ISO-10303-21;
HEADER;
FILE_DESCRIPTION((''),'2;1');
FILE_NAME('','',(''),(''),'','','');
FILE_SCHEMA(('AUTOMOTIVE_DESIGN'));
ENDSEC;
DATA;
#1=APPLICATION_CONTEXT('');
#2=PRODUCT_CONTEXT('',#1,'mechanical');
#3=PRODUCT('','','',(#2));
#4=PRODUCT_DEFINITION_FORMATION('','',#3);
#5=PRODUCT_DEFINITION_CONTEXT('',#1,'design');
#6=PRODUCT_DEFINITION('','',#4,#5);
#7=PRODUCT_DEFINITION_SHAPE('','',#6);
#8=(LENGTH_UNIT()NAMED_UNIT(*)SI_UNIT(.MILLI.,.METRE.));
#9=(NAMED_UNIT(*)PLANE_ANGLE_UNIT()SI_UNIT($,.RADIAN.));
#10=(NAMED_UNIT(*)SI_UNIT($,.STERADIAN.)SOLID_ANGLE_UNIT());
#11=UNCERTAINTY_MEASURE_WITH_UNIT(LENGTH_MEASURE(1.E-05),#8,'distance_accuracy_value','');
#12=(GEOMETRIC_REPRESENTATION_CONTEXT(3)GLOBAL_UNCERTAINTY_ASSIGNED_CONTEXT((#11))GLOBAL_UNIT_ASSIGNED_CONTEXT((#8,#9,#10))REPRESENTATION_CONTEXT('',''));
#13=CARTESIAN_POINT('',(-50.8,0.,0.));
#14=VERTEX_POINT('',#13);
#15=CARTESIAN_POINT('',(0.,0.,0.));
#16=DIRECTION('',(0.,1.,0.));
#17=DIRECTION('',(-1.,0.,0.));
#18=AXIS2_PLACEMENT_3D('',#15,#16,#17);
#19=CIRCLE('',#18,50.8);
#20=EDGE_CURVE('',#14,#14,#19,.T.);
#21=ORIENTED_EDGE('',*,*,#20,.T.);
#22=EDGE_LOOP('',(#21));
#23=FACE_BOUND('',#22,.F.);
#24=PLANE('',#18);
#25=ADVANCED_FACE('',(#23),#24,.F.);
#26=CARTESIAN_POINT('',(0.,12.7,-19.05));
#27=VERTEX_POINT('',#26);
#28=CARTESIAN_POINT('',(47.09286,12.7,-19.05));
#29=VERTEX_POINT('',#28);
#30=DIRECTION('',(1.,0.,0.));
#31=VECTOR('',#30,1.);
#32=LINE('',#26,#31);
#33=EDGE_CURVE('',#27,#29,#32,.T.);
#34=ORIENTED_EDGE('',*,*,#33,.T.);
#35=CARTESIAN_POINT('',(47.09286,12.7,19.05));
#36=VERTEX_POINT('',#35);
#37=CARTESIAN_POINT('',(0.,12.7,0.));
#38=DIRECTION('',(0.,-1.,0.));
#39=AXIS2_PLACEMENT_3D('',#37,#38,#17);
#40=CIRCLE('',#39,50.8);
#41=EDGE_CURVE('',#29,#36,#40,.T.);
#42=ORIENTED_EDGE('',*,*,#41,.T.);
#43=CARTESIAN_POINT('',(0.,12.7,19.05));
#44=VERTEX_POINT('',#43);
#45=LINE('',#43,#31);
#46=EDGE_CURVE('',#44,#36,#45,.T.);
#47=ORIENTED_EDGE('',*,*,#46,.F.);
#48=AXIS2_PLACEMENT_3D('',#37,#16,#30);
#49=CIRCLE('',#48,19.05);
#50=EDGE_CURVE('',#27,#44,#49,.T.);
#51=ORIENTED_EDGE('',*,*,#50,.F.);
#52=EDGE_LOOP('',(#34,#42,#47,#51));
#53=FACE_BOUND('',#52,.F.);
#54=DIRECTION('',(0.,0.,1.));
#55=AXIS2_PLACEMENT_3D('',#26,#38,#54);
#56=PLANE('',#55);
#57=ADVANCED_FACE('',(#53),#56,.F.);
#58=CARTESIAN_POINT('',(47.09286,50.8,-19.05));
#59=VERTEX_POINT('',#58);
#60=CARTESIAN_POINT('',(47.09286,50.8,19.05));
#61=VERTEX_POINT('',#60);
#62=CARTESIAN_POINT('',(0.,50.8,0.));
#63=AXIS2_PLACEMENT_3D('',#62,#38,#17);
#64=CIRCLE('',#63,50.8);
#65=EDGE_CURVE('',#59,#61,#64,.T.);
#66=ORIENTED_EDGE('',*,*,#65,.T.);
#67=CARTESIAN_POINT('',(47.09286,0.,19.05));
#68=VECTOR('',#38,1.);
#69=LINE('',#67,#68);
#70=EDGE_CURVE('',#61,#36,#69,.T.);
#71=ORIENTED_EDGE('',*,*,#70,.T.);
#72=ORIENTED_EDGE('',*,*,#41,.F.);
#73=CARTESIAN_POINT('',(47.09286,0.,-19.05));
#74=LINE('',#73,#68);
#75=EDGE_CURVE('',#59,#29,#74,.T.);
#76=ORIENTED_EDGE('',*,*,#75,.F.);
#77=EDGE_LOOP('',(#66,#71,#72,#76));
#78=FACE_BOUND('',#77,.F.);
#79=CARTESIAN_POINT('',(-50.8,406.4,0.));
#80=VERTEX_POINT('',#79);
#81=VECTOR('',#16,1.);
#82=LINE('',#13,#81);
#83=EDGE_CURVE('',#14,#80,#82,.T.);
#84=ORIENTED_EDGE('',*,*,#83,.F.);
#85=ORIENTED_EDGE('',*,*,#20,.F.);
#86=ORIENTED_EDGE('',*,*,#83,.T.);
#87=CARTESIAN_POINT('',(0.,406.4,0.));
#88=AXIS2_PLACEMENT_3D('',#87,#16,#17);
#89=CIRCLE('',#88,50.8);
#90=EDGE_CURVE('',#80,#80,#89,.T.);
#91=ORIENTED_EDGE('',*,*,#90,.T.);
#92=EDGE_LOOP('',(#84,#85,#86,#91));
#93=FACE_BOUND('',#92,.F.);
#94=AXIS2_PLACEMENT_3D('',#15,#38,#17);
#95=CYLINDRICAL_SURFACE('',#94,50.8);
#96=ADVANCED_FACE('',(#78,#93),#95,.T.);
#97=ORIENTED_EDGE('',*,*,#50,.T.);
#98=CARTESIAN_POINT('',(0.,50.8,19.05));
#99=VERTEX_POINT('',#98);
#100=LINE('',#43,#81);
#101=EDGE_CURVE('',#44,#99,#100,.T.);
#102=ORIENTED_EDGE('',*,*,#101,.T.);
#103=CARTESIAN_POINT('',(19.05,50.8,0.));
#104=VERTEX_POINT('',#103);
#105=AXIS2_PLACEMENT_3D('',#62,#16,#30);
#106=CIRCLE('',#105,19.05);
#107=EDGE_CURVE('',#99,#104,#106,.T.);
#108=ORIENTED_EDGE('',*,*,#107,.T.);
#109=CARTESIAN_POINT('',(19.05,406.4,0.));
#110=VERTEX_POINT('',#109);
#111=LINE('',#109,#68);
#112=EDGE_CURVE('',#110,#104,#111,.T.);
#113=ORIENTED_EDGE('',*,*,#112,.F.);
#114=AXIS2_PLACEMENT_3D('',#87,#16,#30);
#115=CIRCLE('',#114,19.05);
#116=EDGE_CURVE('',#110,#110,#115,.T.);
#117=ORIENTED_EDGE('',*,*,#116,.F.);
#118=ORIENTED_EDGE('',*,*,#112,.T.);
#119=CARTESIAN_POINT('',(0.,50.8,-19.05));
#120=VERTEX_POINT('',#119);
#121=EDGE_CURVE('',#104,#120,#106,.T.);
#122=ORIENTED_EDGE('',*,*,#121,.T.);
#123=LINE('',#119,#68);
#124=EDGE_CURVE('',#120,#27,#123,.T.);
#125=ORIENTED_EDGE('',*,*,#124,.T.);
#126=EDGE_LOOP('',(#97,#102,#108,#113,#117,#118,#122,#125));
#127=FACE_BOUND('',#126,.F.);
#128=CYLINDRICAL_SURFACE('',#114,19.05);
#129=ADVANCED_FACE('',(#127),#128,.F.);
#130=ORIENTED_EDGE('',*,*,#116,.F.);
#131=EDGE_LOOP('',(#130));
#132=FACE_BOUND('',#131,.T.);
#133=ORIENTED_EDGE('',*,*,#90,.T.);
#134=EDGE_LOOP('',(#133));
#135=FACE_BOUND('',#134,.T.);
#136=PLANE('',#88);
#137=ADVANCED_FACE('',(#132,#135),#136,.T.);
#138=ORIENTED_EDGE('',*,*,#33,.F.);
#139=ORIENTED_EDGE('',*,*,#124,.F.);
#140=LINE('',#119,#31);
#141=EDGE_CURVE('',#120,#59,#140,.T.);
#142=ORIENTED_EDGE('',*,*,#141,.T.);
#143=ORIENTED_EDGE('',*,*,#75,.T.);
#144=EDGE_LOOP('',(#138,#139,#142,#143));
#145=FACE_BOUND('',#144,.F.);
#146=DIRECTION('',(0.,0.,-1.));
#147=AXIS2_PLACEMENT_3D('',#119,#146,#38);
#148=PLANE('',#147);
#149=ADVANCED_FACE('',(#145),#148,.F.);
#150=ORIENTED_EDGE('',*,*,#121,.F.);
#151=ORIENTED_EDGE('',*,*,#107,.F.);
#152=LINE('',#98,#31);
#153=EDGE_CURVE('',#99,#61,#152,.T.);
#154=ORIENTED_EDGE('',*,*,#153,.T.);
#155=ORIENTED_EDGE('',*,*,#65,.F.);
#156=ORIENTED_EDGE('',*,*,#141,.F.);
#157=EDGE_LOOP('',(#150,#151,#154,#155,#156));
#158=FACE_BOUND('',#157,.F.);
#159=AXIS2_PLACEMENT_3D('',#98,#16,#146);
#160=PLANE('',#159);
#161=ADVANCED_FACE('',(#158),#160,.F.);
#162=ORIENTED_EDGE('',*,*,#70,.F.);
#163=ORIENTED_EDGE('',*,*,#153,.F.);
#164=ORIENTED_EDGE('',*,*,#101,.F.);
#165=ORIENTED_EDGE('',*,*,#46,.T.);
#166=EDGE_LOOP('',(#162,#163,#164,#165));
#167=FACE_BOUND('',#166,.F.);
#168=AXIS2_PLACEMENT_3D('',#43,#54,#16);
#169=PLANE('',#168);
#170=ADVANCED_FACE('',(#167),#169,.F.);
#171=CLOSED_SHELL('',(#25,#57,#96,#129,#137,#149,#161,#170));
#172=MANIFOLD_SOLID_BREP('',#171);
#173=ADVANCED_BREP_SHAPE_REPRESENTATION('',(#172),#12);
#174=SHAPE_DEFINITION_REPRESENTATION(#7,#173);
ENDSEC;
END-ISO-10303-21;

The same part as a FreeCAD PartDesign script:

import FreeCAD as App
import Part
import Sketcher
Q = App.Units.Quantity

doc = App.newDocument("Part")
params = doc.addObject("Spreadsheet::Sheet", "Params")
for row, (alias, value) in enumerate([
    ("sketch1_diameter", "4 in"),
    ("pad1_length", "16 in"),
    ("sketch2_width", "1.5 in"),
    ("pocket1_length", "4 in"),
    ("sketch3_diameter", "1.5 in"),
    ("pocket2_length", "15.5 in"),
], start=1):
    params.set(f"A{row}", alias)
    params.set(f"B{row}", "=" + value)
    params.setAlias(f"B{row}", alias)

body = doc.addObject("PartDesign::Body", "Body")

sketch1 = body.newObject("Sketcher::SketchObject", "Sketch")
sketch1.AttachmentSupport = (doc.getObject("XZ_Plane"), [""])
sketch1.MapMode = "FlatFace"
sketch1.addGeometry(Part.Circle(App.Vector(0, 0, 0), App.Vector(0, 0, 1), 51), False)
sketch1.addConstraint([
    Sketcher.Constraint("Coincident", 0, 3, -1, 1),
    Sketcher.Constraint("Diameter", 0, Q("4 in")),
])
sketch1.setExpression("Constraints[1]", "Params.sketch1_diameter")
pad1 = body.newObject("PartDesign::Pad", "Pad")
pad1.Profile = sketch1
pad1.setExpression("Length", "Params.pad1_length")
pad1.Reversed = True

sketch2 = body.newObject("Sketcher::SketchObject", "Sketch001")
sketch2.AttachmentSupport = (doc.getObject("YZ_Plane"), [""])
sketch2.MapMode = "FlatFace"
sketch2.addGeometry([
    Part.LineSegment(App.Vector(51, 19, 0), App.Vector(13, 19, 0)),
    Part.LineSegment(App.Vector(13, 19, 0), App.Vector(13, -19, 0)),
    Part.LineSegment(App.Vector(13, -19, 0), App.Vector(51, -19, 0)),
    Part.LineSegment(App.Vector(51, -19, 0), App.Vector(51, 19, 0)),
], False)
sketch2.addConstraint([
    Sketcher.Constraint("Coincident", 0, 2, 1, 1),
    Sketcher.Constraint("Coincident", 1, 2, 2, 1),
    Sketcher.Constraint("Coincident", 2, 2, 3, 1),
    Sketcher.Constraint("Coincident", 3, 2, 0, 1),
    Sketcher.Constraint("Horizontal", 0),
    Sketcher.Constraint("Vertical", 1),
    Sketcher.Constraint("Horizontal", 2),
    Sketcher.Constraint("Vertical", 3),
    Sketcher.Constraint("Equal", 2, 1),
    Sketcher.Constraint("DistanceX", 0, 2, 0, 1, Q("1.5 in")),
    Sketcher.Constraint("DistanceX", -1, 1, 2, 2, Q("2 in")),
    Sketcher.Constraint("DistanceY", -1, 1, 0, 2, Q("0.75 in")),
])
sketch2.setExpression("Constraints[9]", "Params.sketch2_width")
pocket1 = body.newObject("PartDesign::Pocket", "Pocket")
pocket1.Profile = sketch2
pocket1.setExpression("Length", "Params.pocket1_length")
pocket1.Reversed = True

sketch3 = body.newObject("Sketcher::SketchObject", "Sketch002")
sketch3.AttachmentSupport = (doc.getObject("XZ_Plane"), [""])
sketch3.MapMode = "FlatFace"
sketch3.AttachmentOffset = App.Placement(App.Vector(0, 0, -16 * 25.4), App.Rotation())
sketch3.addGeometry(Part.Circle(App.Vector(0, 0, 0), App.Vector(0, 0, 1), 19), False)
sketch3.addConstraint([
    Sketcher.Constraint("Coincident", 0, 3, -1, 1),
    Sketcher.Constraint("Diameter", 0, Q("1.5 in")),
])
sketch3.setExpression("Constraints[1]", "Params.sketch3_diameter")
pocket2 = body.newObject("PartDesign::Pocket", "Pocket001")
pocket2.Profile = sketch3
pocket2.setExpression("Length", "Params.pocket2_length")
pocket2.Reversed = True

doc.recompute()
